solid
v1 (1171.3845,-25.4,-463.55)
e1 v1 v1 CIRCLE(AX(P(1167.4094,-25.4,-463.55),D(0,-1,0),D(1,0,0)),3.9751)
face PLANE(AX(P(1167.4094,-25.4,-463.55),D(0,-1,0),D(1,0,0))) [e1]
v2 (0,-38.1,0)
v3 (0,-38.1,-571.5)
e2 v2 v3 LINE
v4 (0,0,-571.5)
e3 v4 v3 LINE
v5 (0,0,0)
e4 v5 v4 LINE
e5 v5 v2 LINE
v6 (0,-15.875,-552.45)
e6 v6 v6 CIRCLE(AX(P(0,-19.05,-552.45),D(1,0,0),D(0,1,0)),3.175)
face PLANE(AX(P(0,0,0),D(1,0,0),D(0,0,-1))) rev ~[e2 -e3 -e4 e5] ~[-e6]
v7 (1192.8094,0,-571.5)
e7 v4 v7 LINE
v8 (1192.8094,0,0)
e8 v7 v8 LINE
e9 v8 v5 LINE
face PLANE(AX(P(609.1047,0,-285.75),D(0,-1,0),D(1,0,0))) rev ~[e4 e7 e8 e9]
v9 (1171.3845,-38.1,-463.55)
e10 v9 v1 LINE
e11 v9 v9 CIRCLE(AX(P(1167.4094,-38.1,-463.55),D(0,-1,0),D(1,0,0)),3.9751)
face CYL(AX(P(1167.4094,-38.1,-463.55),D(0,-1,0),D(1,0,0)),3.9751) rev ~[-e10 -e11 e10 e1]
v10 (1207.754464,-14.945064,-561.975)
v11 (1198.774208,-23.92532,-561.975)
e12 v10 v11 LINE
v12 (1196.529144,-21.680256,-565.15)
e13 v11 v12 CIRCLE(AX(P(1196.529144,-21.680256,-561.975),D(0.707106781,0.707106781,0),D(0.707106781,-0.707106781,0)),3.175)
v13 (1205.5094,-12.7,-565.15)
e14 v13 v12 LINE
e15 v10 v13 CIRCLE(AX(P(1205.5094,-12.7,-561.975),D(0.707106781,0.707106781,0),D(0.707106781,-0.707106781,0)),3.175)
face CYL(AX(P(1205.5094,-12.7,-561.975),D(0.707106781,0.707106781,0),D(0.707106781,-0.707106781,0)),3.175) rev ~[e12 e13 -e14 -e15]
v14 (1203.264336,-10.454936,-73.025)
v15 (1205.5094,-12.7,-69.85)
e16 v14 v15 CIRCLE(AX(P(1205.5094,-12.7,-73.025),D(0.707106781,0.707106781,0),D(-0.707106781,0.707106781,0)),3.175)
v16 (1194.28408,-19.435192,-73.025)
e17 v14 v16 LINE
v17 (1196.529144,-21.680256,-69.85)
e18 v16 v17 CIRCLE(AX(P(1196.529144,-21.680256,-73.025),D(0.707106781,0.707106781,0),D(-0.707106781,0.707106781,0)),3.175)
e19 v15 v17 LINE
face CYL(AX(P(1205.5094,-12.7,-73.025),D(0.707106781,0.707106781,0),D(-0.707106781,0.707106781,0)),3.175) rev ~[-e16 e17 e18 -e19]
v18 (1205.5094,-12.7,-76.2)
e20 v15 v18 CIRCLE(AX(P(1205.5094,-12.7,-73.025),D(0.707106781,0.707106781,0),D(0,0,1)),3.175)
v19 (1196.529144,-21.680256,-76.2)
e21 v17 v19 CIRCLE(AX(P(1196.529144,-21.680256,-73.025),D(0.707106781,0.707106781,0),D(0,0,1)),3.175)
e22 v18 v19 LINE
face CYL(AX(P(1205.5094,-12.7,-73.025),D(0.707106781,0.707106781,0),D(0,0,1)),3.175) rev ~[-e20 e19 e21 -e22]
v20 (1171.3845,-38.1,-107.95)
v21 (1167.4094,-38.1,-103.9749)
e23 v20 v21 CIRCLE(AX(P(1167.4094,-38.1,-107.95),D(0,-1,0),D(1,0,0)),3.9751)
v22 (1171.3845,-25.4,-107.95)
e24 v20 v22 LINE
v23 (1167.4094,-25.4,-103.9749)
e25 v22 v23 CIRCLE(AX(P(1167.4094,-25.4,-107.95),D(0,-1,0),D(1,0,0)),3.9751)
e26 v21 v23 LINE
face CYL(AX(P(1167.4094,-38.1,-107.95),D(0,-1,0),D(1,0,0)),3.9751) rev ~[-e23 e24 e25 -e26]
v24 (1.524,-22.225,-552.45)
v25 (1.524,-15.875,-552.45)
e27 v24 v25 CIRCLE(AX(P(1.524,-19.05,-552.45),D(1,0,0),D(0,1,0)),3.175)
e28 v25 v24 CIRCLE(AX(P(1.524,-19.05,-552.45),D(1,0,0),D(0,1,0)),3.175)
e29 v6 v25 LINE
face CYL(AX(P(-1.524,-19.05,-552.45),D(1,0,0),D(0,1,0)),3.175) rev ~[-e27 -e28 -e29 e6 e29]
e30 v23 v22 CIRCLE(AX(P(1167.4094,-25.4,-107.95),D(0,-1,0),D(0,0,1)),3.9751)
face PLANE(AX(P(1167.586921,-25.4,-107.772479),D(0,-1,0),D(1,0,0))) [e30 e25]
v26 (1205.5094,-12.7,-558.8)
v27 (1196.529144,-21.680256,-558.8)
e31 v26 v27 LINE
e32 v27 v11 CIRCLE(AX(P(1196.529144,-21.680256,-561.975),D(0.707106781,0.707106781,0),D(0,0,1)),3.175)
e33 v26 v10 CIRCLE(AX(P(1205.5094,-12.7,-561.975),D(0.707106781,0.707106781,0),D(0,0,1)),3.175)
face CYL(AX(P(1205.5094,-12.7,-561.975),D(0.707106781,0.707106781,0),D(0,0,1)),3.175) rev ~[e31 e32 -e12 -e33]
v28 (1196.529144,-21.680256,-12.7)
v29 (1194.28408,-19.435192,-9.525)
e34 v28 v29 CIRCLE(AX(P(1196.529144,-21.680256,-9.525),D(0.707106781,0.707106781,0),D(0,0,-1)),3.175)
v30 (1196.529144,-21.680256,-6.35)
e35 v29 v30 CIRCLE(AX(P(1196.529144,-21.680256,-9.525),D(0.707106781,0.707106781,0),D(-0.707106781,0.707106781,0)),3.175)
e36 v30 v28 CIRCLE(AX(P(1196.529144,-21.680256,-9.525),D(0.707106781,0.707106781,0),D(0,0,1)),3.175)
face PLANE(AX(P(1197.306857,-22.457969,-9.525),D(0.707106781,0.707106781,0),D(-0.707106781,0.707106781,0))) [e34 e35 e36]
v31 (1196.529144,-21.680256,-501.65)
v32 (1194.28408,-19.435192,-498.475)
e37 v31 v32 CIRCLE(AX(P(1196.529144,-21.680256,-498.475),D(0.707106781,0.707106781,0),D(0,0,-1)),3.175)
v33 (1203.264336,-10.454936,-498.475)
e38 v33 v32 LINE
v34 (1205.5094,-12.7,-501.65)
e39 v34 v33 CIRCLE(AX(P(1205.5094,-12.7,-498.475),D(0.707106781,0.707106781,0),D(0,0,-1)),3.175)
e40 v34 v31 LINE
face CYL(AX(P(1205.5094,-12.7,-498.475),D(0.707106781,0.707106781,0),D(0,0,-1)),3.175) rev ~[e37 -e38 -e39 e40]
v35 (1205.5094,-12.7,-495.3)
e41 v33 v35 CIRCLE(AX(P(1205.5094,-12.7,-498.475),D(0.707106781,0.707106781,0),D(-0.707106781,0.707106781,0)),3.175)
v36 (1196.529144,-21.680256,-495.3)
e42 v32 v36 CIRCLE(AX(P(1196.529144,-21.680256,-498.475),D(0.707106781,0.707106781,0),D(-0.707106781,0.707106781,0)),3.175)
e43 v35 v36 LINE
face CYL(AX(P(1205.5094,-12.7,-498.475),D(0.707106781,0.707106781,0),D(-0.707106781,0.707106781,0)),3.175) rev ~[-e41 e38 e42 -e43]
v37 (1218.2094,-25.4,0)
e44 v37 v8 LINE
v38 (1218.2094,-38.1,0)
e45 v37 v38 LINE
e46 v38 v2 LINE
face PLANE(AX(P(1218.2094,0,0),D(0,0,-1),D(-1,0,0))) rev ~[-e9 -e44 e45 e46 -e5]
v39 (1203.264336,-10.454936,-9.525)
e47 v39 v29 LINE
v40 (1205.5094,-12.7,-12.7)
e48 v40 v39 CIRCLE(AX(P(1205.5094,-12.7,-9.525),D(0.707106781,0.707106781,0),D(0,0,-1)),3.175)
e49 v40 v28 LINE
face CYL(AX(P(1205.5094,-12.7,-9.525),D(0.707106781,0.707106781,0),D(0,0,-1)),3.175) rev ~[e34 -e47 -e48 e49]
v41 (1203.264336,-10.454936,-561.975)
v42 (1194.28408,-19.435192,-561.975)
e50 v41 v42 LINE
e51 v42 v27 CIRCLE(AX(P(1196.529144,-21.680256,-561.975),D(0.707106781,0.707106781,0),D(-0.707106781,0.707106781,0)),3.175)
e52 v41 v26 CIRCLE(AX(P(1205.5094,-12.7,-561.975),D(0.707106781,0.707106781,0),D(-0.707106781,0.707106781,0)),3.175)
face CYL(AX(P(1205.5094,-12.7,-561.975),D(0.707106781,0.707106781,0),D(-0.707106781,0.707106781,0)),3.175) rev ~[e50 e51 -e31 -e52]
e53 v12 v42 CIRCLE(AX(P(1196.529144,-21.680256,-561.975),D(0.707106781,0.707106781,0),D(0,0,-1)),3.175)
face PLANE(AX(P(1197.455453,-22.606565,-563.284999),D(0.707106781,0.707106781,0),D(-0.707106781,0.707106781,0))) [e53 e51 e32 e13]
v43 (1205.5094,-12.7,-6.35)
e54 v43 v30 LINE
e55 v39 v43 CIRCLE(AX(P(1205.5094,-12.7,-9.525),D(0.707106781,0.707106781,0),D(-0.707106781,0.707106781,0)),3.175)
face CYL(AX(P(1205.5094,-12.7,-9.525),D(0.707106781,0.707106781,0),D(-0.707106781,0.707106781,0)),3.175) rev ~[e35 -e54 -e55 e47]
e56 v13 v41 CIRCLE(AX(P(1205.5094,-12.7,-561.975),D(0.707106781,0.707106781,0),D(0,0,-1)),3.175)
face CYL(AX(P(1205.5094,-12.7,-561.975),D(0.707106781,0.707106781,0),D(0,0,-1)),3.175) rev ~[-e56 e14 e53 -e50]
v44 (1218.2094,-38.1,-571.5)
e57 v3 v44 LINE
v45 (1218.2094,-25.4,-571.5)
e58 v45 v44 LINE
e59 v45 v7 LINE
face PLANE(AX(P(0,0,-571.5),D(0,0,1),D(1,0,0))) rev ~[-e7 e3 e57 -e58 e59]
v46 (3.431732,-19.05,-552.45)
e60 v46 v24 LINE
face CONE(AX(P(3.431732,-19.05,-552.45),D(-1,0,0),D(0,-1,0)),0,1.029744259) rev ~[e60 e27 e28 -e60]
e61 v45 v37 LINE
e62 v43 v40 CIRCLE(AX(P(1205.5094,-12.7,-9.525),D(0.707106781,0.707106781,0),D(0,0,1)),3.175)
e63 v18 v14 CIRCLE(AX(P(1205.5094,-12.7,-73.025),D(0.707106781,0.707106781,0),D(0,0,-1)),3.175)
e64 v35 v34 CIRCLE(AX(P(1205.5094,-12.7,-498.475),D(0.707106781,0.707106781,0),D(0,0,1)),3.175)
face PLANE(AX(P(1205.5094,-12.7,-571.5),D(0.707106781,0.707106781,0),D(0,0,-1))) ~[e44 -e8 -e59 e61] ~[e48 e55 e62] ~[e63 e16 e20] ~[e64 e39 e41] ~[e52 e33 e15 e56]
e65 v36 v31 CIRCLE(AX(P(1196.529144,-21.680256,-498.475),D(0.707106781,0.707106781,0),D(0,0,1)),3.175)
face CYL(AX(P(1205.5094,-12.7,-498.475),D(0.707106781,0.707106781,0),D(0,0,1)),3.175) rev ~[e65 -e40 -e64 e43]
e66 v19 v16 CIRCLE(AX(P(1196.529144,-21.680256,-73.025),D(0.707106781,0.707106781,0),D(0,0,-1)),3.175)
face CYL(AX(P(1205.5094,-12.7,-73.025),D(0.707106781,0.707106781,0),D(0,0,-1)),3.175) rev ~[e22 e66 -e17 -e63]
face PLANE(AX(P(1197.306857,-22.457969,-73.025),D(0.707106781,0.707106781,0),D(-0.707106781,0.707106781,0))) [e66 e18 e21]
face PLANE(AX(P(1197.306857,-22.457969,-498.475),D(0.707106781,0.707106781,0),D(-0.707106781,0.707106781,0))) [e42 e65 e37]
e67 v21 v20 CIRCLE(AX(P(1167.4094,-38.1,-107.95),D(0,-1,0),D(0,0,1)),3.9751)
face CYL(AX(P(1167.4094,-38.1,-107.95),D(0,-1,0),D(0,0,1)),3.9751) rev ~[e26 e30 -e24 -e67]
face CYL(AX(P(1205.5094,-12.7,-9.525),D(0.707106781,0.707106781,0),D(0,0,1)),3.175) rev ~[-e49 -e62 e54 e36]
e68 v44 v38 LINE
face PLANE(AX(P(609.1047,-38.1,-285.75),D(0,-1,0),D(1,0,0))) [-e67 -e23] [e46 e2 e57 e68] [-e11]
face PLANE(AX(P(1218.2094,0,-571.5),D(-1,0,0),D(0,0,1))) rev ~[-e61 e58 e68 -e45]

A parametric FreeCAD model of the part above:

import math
import FreeCAD as App
import Part
import Sketcher
Q = App.Units.Quantity


def edges_at(feature, points):
    """Names of the edges that pass closest to the given points."""
    edges = feature.Shape.Edges
    near = lambda p: min(range(len(edges)), key=lambda i: edges[i].distToShape(Part.Vertex(*p))[0])
    return sorted({f"Edge{near(p) + 1}" for p in points})


def add_polygon(sketch, points):
    """Adds a closed chain of lines whose ends are joined by coincident constraints."""
    first, n = sketch.GeometryCount, len(points)
    for a, b in zip(points, points[1:] + points[:1]):
        sketch.addGeometry(Part.LineSegment(App.Vector(*a, 0), App.Vector(*b, 0)), False)
    for i in range(n):
        sketch.addConstraint(Sketcher.Constraint("Coincident", first + i, 2, first + (i + 1) % n, 1))

doc = App.newDocument("Part")
body = doc.addObject("PartDesign::Body", "Body")

# Sketch on XZ plane
sketch1 = body.newObject("Sketcher::SketchObject", "Sketch")
sketch1.AttachmentSupport = (doc.getObject("XZ_Plane"), [""])
sketch1.MapMode = "FlatFace"
add_polygon(sketch1, [(0, -572), (1218, -572), (1218, 0), (0, 0)])  # lines 0-3
sketch1.addConstraint(Sketcher.Constraint("Horizontal", 0))
sketch1.addConstraint(Sketcher.Constraint("Vertical", 1))
sketch1.addConstraint(Sketcher.Constraint("Horizontal", 2))
sketch1.addConstraint(Sketcher.Constraint("Vertical", 3))
sketch1.addConstraint(Sketcher.Constraint("Coincident", 2, 2, -1, 1))
sketch1.addConstraint(Sketcher.Constraint("DistanceY", 1, 1, 1, 2, Q("22.5 in")))
sketch1.addConstraint(Sketcher.Constraint("DistanceX", 0, 1, 0, 2, Q("47.961 in")))
pad1 = body.newObject("PartDesign::Pad", "Pad")
pad1.Profile = sketch1
pad1.Length = Q("1.5 in")

# Sketch on YZ plane
sketch2 = body.newObject("Sketcher::SketchObject", "Sketch001")
sketch2.AttachmentSupport = (doc.getObject("YZ_Plane"), [""])
sketch2.MapMode = "FlatFace"
sketch2.addGeometry(Part.Circle(App.Vector(-19.1, -552.5, 0), App.Vector(0, 0, 1), 3.2), False)
sketch2.addGeometry(Part.Circle(App.Vector(-19.1, -590.5, 0), App.Vector(0, 0, 1), 3.2), False)
sketch2.addConstraint(Sketcher.Constraint("Equal", 0, 1))
sketch2.addConstraint(Sketcher.Constraint("Vertical", 0, 3, 1, 3))
sketch2.addConstraint(Sketcher.Constraint("Diameter", 0, Q("0.25 in")))
sketch2.addConstraint(Sketcher.Constraint("DistanceY", 1, 3, 0, 3, Q("1.5 in")))
sketch2.addConstraint(Sketcher.Constraint("DistanceX", 0, 3, -1, 1, Q("0.75 in")))
sketch2.addConstraint(Sketcher.Constraint("DistanceY", 0, 3, -1, 1, Q("21.75 in")))
doc.recompute()
hole = body.newObject("PartDesign::Hole", "Hole")
hole.Profile = sketch2
hole.ThreadType = "None"
hole.Diameter = Q("0.25 in")
hole.DepthType = "Dimension"
hole.Depth = Q("0.06 in")
hole.DrillPoint = "Angled"
hole.DrillPointAngle = 118
hole.Reversed = True
doc.recompute()

chamfer = body.newObject("PartDesign::Chamfer", "Chamfer")
chamfer.Base = (hole, edges_at(hole, [(1218.209, 0, -285.75)]))
chamfer.ChamferType = "Two distances"
chamfer.Size = Q("1 in")
chamfer.Size2 = Q("1 in")

# Sketch on an angled plane
sketch3 = body.newObject("Sketcher::SketchObject", "Sketch002")
sketch3.Placement = App.Placement(App.Vector(596.4047, 596.4047, 0), App.Rotation(App.Vector(-0.707106781, 0.707106781, 0), App.Vector(0, 0, 0.999999999), App.Vector(0.707106781, 0.707106781, 0), "ZXY"))
sketch3.addGeometry(Part.ArcOfCircle(Part.Circle(App.Vector(-861.4, -562, 0), App.Vector(0, 0, 1), 3.2), math.radians(180), math.radians(270)), False)
sketch3.addGeometry(Part.ArcOfCircle(Part.Circle(App.Vector(-861.4, -562, 0), App.Vector(0, 0, 1), 3.2), math.radians(-90), math.radians(0)), False)
sketch3.addGeometry(Part.ArcOfCircle(Part.Circle(App.Vector(-861.4, -562, 0), App.Vector(0, 0, 1), 3.2), math.radians(0), math.radians(90)), False)
sketch3.addGeometry(Part.ArcOfCircle(Part.Circle(App.Vector(-861.4, -562, 0), App.Vector(0, 0, 1), 3.2), math.radians(90), math.radians(180)), False)
sketch3.addGeometry(Part.ArcOfCircle(Part.Circle(App.Vector(-861.4, -9.5, 0), App.Vector(0, 0, 1), 3.2), math.radians(90), math.radians(270)), False)
sketch3.addGeometry(Part.ArcOfCircle(Part.Circle(App.Vector(-861.4, -9.5, 0), App.Vector(0, 0, 1), 3.2), math.radians(-90), math.radians(0)), False)
sketch3.addGeometry(Part.ArcOfCircle(Part.Circle(App.Vector(-861.4, -9.5, 0), App.Vector(0, 0, 1), 3.2), math.radians(0), math.radians(90)), False)
sketch3.addGeometry(Part.ArcOfCircle(Part.Circle(App.Vector(-861.4, -73, 0), App.Vector(0, 0, 1), 3.2), math.radians(90), math.radians(270)), False)
sketch3.addGeometry(Part.ArcOfCircle(Part.Circle(App.Vector(-861.4, -73, 0), App.Vector(0, 0, 1), 3.2), math.radians(-90), math.radians(0)), False)
sketch3.addGeometry(Part.ArcOfCircle(Part.Circle(App.Vector(-861.4, -73, 0), App.Vector(0, 0, 1), 3.2), math.radians(0), math.radians(90)), False)
sketch3.addGeometry(Part.ArcOfCircle(Part.Circle(App.Vector(-861.4, -498.5, 0), App.Vector(0, 0, 1), 3.2), math.radians(90), math.radians(270)), False)
sketch3.addGeometry(Part.ArcOfCircle(Part.Circle(App.Vector(-861.4, -498.5, 0), App.Vector(0, 0, 1), 3.2), math.radians(-90), math.radians(0)), False)
sketch3.addGeometry(Part.ArcOfCircle(Part.Circle(App.Vector(-861.4, -498.5, 0), App.Vector(0, 0, 1), 3.2), math.radians(0), math.radians(90)), False)
sketch3.addConstraint(Sketcher.Constraint("Tangent", 0, 2, 1, 1))
sketch3.addConstraint(Sketcher.Constraint("Tangent", 1, 2, 2, 1))
sketch3.addConstraint(Sketcher.Constraint("Tangent", 2, 2, 3, 1))
sketch3.addConstraint(Sketcher.Constraint("Tangent", 3, 2, 0, 1))
sketch3.addConstraint(Sketcher.Constraint("Tangent", 4, 2, 5, 1))
sketch3.addConstraint(Sketcher.Constraint("Tangent", 5, 2, 6, 1))
sketch3.addConstraint(Sketcher.Constraint("Tangent", 6, 2, 4, 1))
sketch3.addConstraint(Sketcher.Constraint("Tangent", 7, 2, 8, 1))
sketch3.addConstraint(Sketcher.Constraint("Tangent", 8, 2, 9, 1))
sketch3.addConstraint(Sketcher.Constraint("Tangent", 9, 2, 7, 1))
sketch3.addConstraint(Sketcher.Constraint("Tangent", 10, 2, 11, 1))
sketch3.addConstraint(Sketcher.Constraint("Tangent", 11, 2, 12, 1))
sketch3.addConstraint(Sketcher.Constraint("Tangent", 12, 2, 10, 1))
sketch3.addConstraint(Sketcher.Constraint("Equal", 0, 1))
sketch3.addConstraint(Sketcher.Constraint("Equal", 3, 4))
sketch3.addConstraint(Sketcher.Constraint("Equal", 6, 7))
sketch3.addConstraint(Sketcher.Constraint("Equal", 9, 10))
sketch3.addConstraint(Sketcher.Constraint("Horizontal", 3, 3, 1, 2))
sketch3.addConstraint(Sketcher.Constraint("Horizontal", 1, 2, 3, 2))
sketch3.addConstraint(Sketcher.Constraint("Horizontal", 6, 3, 5, 2))
sketch3.addConstraint(Sketcher.Constraint("Horizontal", 9, 3, 8, 2))
sketch3.addConstraint(Sketcher.Constraint("Horizontal", 12, 3, 11, 2))
sketch3.addConstraint(Sketcher.Constraint("Vertical", 3, 3, 4, 3))
sketch3.addConstraint(Sketcher.Constraint("Vertical", 6, 3, 7, 3))
sketch3.addConstraint(Sketcher.Constraint("Vertical", 9, 3, 10, 3))
sketch3.addConstraint(Sketcher.Constraint("Vertical", 12, 3, 0, 2))
sketch3.addConstraint(Sketcher.Constraint("Vertical", 0, 2, 2, 2))
sketch3.addConstraint(Sketcher.Constraint("Vertical", 2, 2, 4, 2))
sketch3.addConstraint(Sketcher.Constraint("Vertical", 4, 2, 6, 2))
sketch3.addConstraint(Sketcher.Constraint("Vertical", 6, 2, 7, 2))
sketch3.addConstraint(Sketcher.Constraint("Vertical", 7, 2, 9, 2))
sketch3.addConstraint(Sketcher.Constraint("Vertical", 9, 2, 10, 2))
sketch3.addConstraint(Sketcher.Constraint("Vertical", 10, 2, 12, 2))
sketch3.addConstraint(Sketcher.Constraint("DistanceY", 2, 2, -1, 1, Q("22 in")))
sketch3.addConstraint(Sketcher.Constraint("DistanceY", 7, 2, -1, 1, Q("3 in")))
sketch3.addConstraint(Sketcher.Constraint("Radius", 0, Q("0.125 in")))
sketch3.addConstraint(Sketcher.Constraint("DistanceY", 4, 2, -1, 1, Q("0.5 in")))
sketch3.addConstraint(Sketcher.Constraint("DistanceY", 12, 2, -1, 1, Q("19.5 in")))
sketch3.addConstraint(Sketcher.Constraint("DistanceX", 0, 3, -1, 1, 861.404127))
pocket1 = body.newObject("PartDesign::Pocket", "Pocket")
pocket1.Profile = sketch3
pocket1.Length = Q("0.5 in")

# Sketch on XZ plane
sketch4 = body.newObject("Sketcher::SketchObject", "Sketch003")
sketch4.AttachmentSupport = (doc.getObject("XZ_Plane"), [""])
sketch4.MapMode = "FlatFace"
sketch4.AttachmentOffset = App.Placement(App.Vector(0, 0, 1.5 * 25.4), App.Rotation())
sketch4.addGeometry(Part.ArcOfCircle(Part.Circle(App.Vector(1167.4, -108, 0), App.Vector(0, 0, 1), 4), math.radians(90), math.radians(360)), False)
sketch4.addGeometry(Part.ArcOfCircle(Part.Circle(App.Vector(1167.4, -108, 0), App.Vector(0, 0, 1), 4), math.radians(0), math.radians(90)), False)
sketch4.addGeometry(Part.Circle(App.Vector(1167.4, -463.6, 0), App.Vector(0, 0, 1), 4), False)
sketch4.addConstraint(Sketcher.Constraint("Tangent", 0, 1, 1, 2))
sketch4.addConstraint(Sketcher.Constraint("Coincident", 1, 1, 0, 2))
sketch4.addConstraint(Sketcher.Constraint("Equal", 1, 2))
sketch4.addConstraint(Sketcher.Constraint("Horizontal", 0, 3, 1, 1))
sketch4.addConstraint(Sketcher.Constraint("Vertical", 1, 3, 2, 3))
sketch4.addConstraint(Sketcher.Constraint("Vertical", 2, 3, 0, 1))
sketch4.addConstraint(Sketcher.Constraint("Diameter", 2, Q("0.313 in")))
sketch4.addConstraint(Sketcher.Constraint("DistanceY", 2, 3, 0, 3, Q("14 in")))
sketch4.addConstraint(Sketcher.Constraint("DistanceY", 0, 3, -1, 1, Q("4.25 in")))
sketch4.addConstraint(Sketcher.Constraint("DistanceX", -1, 1, 0, 3, Q("45.961 in")))
pocket2 = body.newObject("PartDesign::Pocket", "Pocket001")
pocket2.Profile = sketch4
pocket2.Length = Q("0.5 in")

doc.recompute()
